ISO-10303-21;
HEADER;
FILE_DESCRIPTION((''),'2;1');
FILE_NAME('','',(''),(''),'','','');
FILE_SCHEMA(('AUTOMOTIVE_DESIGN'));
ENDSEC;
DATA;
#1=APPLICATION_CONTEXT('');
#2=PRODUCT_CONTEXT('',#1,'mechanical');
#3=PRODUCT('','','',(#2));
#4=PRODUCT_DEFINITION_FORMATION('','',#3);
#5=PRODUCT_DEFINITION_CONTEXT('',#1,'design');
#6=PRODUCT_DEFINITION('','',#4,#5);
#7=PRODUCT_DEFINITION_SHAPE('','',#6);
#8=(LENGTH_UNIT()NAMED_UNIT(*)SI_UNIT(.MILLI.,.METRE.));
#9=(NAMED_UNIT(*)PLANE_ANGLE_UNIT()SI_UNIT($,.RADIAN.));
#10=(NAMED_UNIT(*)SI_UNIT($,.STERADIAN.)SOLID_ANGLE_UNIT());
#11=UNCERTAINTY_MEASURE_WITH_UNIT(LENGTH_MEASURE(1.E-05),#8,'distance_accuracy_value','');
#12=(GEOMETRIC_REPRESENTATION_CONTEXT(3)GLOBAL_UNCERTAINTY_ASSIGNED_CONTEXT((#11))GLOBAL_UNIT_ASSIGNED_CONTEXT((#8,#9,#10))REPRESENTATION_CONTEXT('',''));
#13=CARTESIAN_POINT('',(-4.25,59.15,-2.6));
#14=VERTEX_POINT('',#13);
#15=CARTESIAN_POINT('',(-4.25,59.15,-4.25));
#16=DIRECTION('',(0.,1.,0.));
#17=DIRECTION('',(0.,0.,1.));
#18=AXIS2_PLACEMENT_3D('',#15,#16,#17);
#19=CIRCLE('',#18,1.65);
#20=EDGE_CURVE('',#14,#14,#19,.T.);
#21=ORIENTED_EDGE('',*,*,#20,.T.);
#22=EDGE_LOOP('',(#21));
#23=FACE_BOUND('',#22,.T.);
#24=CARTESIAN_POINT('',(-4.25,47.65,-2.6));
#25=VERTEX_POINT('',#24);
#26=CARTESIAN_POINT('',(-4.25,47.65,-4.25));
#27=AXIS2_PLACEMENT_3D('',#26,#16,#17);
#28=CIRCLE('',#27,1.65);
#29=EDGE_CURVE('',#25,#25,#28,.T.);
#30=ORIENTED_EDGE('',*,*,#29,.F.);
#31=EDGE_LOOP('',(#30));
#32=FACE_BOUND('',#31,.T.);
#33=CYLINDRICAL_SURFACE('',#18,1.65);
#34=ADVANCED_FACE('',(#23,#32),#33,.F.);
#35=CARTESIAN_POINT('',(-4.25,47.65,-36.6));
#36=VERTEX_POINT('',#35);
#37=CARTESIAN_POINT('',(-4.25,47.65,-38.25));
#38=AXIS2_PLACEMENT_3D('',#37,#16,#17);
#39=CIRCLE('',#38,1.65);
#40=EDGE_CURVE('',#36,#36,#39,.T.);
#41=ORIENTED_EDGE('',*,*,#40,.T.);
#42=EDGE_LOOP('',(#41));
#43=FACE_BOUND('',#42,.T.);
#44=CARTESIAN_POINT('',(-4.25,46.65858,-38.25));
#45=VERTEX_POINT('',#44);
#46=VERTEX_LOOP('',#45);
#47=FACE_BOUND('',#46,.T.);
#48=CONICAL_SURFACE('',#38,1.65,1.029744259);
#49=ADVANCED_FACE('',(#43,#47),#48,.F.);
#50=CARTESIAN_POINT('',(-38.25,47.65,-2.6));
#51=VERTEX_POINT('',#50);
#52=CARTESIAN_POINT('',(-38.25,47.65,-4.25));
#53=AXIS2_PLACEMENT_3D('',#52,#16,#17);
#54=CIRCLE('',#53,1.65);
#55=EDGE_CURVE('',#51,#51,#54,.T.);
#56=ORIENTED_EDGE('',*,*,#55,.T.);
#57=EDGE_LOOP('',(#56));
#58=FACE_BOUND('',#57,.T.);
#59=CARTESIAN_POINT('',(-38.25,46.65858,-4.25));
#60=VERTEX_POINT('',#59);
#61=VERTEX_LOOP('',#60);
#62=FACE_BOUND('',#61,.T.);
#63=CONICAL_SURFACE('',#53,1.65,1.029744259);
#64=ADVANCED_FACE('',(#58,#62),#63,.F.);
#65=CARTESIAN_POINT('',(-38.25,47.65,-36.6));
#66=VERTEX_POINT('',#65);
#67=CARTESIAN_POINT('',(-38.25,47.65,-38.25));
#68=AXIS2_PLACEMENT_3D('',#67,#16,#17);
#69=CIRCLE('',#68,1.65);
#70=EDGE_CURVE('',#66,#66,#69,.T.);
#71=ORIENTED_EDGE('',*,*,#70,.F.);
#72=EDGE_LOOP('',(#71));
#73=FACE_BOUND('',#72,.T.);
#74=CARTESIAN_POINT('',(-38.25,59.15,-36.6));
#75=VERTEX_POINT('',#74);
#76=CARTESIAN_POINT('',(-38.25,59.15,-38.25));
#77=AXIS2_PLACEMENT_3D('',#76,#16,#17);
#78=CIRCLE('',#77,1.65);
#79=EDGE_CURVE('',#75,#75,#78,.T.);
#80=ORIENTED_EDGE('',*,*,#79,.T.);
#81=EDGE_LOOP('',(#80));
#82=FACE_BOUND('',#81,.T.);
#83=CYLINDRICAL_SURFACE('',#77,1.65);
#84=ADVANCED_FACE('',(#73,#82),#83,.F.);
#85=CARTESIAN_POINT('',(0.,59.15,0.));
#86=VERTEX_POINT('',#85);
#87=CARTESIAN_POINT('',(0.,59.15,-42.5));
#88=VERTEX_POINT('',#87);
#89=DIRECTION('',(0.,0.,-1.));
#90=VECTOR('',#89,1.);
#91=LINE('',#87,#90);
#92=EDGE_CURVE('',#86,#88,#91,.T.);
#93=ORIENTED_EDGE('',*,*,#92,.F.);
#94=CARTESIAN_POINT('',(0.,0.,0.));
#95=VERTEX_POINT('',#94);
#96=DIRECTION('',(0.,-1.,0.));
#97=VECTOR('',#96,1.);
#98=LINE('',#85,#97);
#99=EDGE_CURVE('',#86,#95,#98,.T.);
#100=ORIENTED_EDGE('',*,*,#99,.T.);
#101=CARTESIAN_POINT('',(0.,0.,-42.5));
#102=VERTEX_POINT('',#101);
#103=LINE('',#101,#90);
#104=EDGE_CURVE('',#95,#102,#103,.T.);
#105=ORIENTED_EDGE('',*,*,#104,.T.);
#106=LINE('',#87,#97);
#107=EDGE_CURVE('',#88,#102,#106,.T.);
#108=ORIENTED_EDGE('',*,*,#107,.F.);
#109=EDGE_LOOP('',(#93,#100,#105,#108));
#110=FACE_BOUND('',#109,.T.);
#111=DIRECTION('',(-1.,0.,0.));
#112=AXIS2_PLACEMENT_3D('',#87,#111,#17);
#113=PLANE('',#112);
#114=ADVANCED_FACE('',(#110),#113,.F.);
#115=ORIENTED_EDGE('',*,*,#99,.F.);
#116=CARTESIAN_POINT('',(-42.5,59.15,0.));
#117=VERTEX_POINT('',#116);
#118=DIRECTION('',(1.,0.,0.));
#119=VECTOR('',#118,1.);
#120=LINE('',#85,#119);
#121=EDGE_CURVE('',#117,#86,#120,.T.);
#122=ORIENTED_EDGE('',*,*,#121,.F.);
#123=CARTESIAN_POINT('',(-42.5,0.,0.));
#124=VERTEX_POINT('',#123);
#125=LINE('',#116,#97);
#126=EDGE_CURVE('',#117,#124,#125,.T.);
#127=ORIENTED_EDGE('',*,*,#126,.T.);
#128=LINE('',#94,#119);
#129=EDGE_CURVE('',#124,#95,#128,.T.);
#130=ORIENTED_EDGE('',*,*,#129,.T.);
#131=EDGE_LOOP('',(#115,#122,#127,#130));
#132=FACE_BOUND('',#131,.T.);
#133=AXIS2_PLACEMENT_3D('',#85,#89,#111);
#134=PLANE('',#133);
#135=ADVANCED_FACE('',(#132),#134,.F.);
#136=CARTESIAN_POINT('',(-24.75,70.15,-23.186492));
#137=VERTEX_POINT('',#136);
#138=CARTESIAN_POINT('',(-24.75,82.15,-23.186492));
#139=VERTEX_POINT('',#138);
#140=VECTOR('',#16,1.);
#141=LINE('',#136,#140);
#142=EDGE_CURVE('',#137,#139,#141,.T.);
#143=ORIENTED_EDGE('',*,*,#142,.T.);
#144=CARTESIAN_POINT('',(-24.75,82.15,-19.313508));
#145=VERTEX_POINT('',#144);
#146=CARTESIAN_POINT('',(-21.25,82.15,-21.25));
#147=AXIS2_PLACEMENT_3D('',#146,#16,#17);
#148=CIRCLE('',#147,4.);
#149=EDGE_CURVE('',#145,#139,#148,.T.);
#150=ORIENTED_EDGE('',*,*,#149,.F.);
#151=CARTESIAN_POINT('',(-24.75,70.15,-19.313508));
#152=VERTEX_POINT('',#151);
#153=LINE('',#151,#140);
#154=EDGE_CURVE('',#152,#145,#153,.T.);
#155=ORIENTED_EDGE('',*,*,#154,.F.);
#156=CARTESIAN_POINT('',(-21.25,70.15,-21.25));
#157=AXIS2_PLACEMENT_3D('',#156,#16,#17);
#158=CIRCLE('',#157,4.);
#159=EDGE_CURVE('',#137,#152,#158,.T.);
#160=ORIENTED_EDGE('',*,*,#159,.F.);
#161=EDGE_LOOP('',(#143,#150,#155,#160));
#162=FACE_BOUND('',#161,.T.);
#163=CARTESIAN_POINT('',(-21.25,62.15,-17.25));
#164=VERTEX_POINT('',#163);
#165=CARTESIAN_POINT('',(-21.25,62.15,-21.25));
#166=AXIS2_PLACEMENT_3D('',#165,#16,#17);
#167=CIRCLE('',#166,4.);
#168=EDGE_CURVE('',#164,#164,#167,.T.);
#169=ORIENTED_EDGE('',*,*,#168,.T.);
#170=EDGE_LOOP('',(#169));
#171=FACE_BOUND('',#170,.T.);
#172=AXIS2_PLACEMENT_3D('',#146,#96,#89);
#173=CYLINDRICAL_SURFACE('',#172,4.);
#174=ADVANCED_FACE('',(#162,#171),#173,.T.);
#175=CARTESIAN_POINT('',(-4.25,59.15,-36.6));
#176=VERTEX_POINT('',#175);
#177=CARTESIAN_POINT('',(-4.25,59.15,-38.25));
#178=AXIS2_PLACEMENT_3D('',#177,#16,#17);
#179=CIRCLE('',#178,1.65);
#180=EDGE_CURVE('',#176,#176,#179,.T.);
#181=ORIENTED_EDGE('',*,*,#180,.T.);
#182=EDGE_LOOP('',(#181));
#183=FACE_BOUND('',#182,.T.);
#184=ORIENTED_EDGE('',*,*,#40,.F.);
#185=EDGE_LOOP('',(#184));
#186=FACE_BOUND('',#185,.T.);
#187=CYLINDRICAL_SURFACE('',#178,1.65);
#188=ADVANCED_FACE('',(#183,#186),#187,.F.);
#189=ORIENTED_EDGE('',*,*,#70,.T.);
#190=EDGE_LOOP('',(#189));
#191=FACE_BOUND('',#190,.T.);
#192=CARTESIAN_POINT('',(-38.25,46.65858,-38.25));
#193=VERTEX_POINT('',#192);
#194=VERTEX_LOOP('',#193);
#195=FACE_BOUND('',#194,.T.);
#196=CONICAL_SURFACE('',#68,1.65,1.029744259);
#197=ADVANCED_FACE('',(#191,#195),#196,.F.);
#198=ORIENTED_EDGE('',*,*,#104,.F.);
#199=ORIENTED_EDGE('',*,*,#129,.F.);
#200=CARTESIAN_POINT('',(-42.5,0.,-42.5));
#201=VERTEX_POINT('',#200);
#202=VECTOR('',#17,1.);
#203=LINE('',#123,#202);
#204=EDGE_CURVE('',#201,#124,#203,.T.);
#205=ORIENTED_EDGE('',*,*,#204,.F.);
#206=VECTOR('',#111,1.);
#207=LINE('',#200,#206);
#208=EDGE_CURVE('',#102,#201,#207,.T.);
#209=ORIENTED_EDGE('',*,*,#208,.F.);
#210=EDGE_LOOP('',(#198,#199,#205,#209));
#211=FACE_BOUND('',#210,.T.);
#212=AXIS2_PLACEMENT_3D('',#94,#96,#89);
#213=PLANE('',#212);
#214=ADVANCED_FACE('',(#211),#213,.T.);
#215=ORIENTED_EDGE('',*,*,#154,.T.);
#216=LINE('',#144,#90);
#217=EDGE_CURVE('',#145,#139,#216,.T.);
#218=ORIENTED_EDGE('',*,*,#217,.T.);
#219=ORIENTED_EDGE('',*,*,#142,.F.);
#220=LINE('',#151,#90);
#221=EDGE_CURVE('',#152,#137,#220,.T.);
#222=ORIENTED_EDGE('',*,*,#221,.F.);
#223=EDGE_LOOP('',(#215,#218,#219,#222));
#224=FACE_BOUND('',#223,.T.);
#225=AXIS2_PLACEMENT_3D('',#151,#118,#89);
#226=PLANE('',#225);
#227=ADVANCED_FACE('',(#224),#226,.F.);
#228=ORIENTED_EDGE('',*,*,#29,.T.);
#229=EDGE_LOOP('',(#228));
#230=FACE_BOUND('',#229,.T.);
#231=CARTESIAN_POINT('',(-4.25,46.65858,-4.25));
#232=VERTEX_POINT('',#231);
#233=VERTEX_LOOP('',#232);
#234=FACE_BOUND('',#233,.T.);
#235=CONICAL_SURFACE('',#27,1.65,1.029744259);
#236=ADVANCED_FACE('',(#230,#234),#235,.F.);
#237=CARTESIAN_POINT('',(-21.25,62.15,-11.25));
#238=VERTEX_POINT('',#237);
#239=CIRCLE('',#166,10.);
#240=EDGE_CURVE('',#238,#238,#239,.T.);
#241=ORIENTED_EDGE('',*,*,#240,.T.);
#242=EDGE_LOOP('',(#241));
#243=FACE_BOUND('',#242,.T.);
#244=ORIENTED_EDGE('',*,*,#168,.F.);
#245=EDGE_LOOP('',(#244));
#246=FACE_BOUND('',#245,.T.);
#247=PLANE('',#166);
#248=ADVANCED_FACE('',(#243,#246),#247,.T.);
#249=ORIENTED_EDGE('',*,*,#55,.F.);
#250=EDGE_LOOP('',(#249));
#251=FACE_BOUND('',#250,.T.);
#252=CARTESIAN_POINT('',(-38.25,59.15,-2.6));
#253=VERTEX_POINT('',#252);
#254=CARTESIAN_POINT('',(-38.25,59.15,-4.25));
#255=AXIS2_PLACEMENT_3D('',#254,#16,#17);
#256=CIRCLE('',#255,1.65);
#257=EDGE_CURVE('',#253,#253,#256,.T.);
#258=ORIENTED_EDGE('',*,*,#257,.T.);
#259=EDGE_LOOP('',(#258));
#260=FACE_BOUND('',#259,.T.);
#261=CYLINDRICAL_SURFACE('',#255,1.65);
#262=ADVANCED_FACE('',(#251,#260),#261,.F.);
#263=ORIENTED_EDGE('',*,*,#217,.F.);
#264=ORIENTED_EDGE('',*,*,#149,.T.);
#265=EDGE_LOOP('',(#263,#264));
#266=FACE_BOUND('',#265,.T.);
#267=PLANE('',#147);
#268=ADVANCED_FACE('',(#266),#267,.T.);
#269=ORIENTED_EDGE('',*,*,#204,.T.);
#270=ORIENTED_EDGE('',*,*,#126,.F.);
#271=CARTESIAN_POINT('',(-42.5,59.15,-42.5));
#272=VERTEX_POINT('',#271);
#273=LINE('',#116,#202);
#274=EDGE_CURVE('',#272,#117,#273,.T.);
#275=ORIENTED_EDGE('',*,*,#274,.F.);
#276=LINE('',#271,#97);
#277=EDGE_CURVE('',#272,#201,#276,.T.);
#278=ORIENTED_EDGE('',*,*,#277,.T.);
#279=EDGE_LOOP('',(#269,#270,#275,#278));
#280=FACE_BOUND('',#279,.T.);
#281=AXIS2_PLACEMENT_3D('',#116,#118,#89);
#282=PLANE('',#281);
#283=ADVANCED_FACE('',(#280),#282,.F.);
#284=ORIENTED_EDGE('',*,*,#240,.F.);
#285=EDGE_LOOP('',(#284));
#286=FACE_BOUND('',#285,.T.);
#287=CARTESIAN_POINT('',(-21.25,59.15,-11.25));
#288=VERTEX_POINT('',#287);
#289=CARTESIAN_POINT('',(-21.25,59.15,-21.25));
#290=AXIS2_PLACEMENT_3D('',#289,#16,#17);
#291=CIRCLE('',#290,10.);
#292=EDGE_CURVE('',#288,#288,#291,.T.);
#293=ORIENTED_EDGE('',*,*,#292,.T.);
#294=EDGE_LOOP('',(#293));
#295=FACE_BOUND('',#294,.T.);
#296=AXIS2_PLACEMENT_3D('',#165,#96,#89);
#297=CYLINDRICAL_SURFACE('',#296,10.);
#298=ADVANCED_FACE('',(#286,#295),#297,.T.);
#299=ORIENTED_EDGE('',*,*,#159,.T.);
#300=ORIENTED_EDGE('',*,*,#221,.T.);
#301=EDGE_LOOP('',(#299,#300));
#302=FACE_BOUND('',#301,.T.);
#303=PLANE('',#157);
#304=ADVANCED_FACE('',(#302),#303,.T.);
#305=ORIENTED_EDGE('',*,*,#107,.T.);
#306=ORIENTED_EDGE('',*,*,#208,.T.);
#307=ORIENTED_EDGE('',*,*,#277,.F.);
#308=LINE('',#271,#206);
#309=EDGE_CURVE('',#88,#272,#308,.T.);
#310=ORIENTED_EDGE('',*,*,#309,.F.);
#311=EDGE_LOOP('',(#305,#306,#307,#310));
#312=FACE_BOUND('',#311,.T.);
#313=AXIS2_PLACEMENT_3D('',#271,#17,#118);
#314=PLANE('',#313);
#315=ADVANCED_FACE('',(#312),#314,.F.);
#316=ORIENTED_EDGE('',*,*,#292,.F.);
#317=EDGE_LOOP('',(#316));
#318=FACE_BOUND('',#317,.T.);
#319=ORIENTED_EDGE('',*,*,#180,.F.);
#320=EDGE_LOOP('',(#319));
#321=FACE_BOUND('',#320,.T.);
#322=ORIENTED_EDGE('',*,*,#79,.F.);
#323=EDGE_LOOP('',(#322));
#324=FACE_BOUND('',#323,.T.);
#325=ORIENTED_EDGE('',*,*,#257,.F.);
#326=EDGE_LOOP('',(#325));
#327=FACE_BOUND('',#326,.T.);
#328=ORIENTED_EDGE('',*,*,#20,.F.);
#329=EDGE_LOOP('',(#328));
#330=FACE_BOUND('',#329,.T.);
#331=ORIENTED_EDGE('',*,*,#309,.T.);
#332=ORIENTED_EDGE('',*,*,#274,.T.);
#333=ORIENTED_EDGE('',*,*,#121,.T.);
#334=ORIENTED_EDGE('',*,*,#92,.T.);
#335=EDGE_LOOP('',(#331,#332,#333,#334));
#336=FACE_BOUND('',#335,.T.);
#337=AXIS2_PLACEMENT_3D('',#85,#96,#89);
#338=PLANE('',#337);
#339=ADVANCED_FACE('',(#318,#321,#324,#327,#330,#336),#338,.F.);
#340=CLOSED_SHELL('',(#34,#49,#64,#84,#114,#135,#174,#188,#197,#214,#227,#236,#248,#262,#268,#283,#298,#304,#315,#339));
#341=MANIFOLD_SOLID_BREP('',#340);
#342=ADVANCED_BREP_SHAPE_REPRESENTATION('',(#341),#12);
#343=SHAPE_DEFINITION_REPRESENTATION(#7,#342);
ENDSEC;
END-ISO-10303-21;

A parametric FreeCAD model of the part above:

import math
import FreeCAD as App
import Part
import Sketcher

V = App.Vector


def add_polygon(sketch, points):
    """Adds a closed chain of lines whose ends are joined by coincident constraints."""
    first, n = sketch.GeometryCount, len(points)
    for a, b in zip(points, points[1:] + points[:1]):
        sketch.addGeometry(Part.LineSegment(App.Vector(*a, 0), App.Vector(*b, 0)), False)
    for i in range(n):
        sketch.addConstraint(Sketcher.Constraint("Coincident", first + i, 2, first + (i + 1) % n, 1))

doc = App.newDocument("Part")
body = doc.addObject("PartDesign::Body", "Body")

# Sketch on XZ plane
sketch1 = doc.addObject("Sketcher::SketchObject", "Sketch")
body.addObject(sketch1)
sketch1.AttachmentSupport = (doc.XZ_Plane, [""])
sketch1.MapMode = "FlatFace"
add_polygon(sketch1, [(0, 0), (0, -42), (-42, -42), (-42, 0)])  # lines 0-3
sketch1.addConstraint(Sketcher.Constraint("Vertical", 0))
sketch1.addConstraint(Sketcher.Constraint("Horizontal", 1))
sketch1.addConstraint(Sketcher.Constraint("Vertical", 2))
sketch1.addConstraint(Sketcher.Constraint("Horizontal", 3))
sketch1.addConstraint(Sketcher.Constraint("Coincident", 3, 2, -1, 1))
sketch1.addConstraint(Sketcher.Constraint("Equal", 3, 0))
sketch1.addConstraint(Sketcher.Constraint("DistanceX", 1, 2, 1, 1, 42.5))
pad1 = doc.addObject("PartDesign::Pad", "Pad")
body.addObject(pad1)
pad1.Profile = sketch1
pad1.Length = 59.15
pad1.Reversed = True

# Sketch on XZ plane
sketch2 = doc.addObject("Sketcher::SketchObject", "Sketch001")
body.addObject(sketch2)
sketch2.AttachmentSupport = (doc.XZ_Plane, [""])
sketch2.MapMode = "FlatFace"
sketch2.AttachmentOffset = App.Placement(V(0, 0, -59.15), App.Rotation())
sketch2.addGeometry(Part.Circle(V(-21, -21, 0), V(0, 0, 1), 10), False)
sketch2.addConstraint(Sketcher.Constraint("Diameter", 0, 20.0))
sketch2.addConstraint(Sketcher.Constraint("DistanceX", 0, 3, -1, 1, 21.25))
sketch2.addConstraint(Sketcher.Constraint("DistanceY", 0, 3, -1, 1, 21.25))
pad2 = doc.addObject("PartDesign::Pad", "Pad001")
body.addObject(pad2)
pad2.Profile = sketch2
pad2.Length = 3
pad2.Reversed = True

# Sketch on XZ plane
sketch3 = doc.addObject("Sketcher::SketchObject", "Sketch002")
body.addObject(sketch3)
sketch3.AttachmentSupport = (doc.XZ_Plane, [""])
sketch3.MapMode = "FlatFace"
sketch3.AttachmentOffset = App.Placement(V(0, 0, -62.15), App.Rotation())
sketch3.addGeometry(Part.Circle(V(-21.2, -21.2, 0), V(0, 0, 1), 4), False)
sketch3.addConstraint(Sketcher.Constraint("Diameter", 0, 8.0))
sketch3.addConstraint(Sketcher.Constraint("DistanceX", 0, 3, -1, 1, 21.25))
sketch3.addConstraint(Sketcher.Constraint("DistanceY", 0, 3, -1, 1, 21.25))
pad3 = doc.addObject("PartDesign::Pad", "Pad002")
body.addObject(pad3)
pad3.Profile = sketch3
pad3.Length = 20
pad3.Reversed = True

# Sketch on XZ plane
sketch4 = doc.addObject("Sketcher::SketchObject", "Sketch003")
body.addObject(sketch4)
sketch4.AttachmentSupport = (doc.XZ_Plane, [""])
sketch4.MapMode = "FlatFace"
sketch4.AttachmentOffset = App.Placement(V(0, 0, -59.15), App.Rotation())
sketch4.addGeometry(Part.Circle(V(-4.2, -38.2, 0), V(0, 0, 1), 1.6), False)
sketch4.addGeometry(Part.Circle(V(-4.2, -4.2, 0), V(0, 0, 1), 1.6), False)
sketch4.addGeometry(Part.Circle(V(-38.2, -4.2, 0), V(0, 0, 1), 1.6), False)
sketch4.addGeometry(Part.Circle(V(-38.2, -38.2, 0), V(0, 0, 1), 1.6), False)
sketch4.addConstraint(Sketcher.Constraint("Equal", 0, 1))
sketch4.addConstraint(Sketcher.Constraint("Equal", 1, 2))
sketch4.addConstraint(Sketcher.Constraint("Equal", 2, 3))
sketch4.addConstraint(Sketcher.Constraint("Horizontal", 1, 3, 2, 3))
sketch4.addConstraint(Sketcher.Constraint("Horizontal", 0, 3, 3, 3))
sketch4.addConstraint(Sketcher.Constraint("Vertical", 0, 3, 1, 3))
sketch4.addConstraint(Sketcher.Constraint("Vertical", 2, 3, 3, 3))
sketch4.addConstraint(Sketcher.Constraint("Diameter", 0, 3.3))
sketch4.addConstraint(Sketcher.Constraint("DistanceY", 0, 3, 1, 3, 34.0))
sketch4.addConstraint(Sketcher.Constraint("DistanceX", 2, 3, 1, 3, 34.0))
sketch4.addConstraint(Sketcher.Constraint("DistanceX", 0, 3, -1, 1, 4.25))
sketch4.addConstraint(Sketcher.Constraint("DistanceY", 0, 3, -1, 1, 38.25))
doc.recompute()
hole = doc.addObject("PartDesign::Hole", "Hole")
body.addObject(hole)
hole.Profile = sketch4
hole.ThreadType = "None"
hole.Diameter = 3.3
hole.DepthType = "Dimension"
hole.Depth = 11.5
hole.DrillPoint = "Angled"
hole.DrillPointAngle = 118
hole.Reversed = True

# Sketch on XZ plane
sketch5 = doc.addObject("Sketcher::SketchObject", "Sketch004")
body.addObject(sketch5)
sketch5.AttachmentSupport = (doc.XZ_Plane, [""])
sketch5.MapMode = "FlatFace"
sketch5.AttachmentOffset = App.Placement(V(0, 0, -82.15), App.Rotation())
sketch5.addGeometry(Part.LineSegment(V(-24.8, -19.3, 0), V(-24.8, -23.2, 0)), False)
sketch5.addGeometry(Part.ArcOfCircle(Part.Circle(V(-21.2, -21.2, 0), V(0, 0, 1), 4), math.radians(151), math.radians(209)), False)
sketch5.addConstraint(Sketcher.Constraint("Coincident", 0, 1, 1, 1))
sketch5.addConstraint(Sketcher.Constraint("Coincident", 1, 2, 0, 2))
sketch5.addConstraint(Sketcher.Constraint("Vertical", 0))
sketch5.addConstraint(Sketcher.Constraint("Radius", 1, 4.0))
sketch5.addConstraint(Sketcher.Constraint("DistanceX", 0, 1, 1, 3, 3.5))
sketch5.addConstraint(Sketcher.Constraint("DistanceX", 1, 3, -1, 1, 21.25))
sketch5.addConstraint(Sketcher.Constraint("DistanceY", 1, 3, -1, 1, 21.25))
pocket1 = doc.addObject("PartDesign::Pocket", "Pocket")
body.addObject(pocket1)
pocket1.Profile = sketch5
pocket1.Length = 12
pocket1.Reversed = True

doc.recompute()
